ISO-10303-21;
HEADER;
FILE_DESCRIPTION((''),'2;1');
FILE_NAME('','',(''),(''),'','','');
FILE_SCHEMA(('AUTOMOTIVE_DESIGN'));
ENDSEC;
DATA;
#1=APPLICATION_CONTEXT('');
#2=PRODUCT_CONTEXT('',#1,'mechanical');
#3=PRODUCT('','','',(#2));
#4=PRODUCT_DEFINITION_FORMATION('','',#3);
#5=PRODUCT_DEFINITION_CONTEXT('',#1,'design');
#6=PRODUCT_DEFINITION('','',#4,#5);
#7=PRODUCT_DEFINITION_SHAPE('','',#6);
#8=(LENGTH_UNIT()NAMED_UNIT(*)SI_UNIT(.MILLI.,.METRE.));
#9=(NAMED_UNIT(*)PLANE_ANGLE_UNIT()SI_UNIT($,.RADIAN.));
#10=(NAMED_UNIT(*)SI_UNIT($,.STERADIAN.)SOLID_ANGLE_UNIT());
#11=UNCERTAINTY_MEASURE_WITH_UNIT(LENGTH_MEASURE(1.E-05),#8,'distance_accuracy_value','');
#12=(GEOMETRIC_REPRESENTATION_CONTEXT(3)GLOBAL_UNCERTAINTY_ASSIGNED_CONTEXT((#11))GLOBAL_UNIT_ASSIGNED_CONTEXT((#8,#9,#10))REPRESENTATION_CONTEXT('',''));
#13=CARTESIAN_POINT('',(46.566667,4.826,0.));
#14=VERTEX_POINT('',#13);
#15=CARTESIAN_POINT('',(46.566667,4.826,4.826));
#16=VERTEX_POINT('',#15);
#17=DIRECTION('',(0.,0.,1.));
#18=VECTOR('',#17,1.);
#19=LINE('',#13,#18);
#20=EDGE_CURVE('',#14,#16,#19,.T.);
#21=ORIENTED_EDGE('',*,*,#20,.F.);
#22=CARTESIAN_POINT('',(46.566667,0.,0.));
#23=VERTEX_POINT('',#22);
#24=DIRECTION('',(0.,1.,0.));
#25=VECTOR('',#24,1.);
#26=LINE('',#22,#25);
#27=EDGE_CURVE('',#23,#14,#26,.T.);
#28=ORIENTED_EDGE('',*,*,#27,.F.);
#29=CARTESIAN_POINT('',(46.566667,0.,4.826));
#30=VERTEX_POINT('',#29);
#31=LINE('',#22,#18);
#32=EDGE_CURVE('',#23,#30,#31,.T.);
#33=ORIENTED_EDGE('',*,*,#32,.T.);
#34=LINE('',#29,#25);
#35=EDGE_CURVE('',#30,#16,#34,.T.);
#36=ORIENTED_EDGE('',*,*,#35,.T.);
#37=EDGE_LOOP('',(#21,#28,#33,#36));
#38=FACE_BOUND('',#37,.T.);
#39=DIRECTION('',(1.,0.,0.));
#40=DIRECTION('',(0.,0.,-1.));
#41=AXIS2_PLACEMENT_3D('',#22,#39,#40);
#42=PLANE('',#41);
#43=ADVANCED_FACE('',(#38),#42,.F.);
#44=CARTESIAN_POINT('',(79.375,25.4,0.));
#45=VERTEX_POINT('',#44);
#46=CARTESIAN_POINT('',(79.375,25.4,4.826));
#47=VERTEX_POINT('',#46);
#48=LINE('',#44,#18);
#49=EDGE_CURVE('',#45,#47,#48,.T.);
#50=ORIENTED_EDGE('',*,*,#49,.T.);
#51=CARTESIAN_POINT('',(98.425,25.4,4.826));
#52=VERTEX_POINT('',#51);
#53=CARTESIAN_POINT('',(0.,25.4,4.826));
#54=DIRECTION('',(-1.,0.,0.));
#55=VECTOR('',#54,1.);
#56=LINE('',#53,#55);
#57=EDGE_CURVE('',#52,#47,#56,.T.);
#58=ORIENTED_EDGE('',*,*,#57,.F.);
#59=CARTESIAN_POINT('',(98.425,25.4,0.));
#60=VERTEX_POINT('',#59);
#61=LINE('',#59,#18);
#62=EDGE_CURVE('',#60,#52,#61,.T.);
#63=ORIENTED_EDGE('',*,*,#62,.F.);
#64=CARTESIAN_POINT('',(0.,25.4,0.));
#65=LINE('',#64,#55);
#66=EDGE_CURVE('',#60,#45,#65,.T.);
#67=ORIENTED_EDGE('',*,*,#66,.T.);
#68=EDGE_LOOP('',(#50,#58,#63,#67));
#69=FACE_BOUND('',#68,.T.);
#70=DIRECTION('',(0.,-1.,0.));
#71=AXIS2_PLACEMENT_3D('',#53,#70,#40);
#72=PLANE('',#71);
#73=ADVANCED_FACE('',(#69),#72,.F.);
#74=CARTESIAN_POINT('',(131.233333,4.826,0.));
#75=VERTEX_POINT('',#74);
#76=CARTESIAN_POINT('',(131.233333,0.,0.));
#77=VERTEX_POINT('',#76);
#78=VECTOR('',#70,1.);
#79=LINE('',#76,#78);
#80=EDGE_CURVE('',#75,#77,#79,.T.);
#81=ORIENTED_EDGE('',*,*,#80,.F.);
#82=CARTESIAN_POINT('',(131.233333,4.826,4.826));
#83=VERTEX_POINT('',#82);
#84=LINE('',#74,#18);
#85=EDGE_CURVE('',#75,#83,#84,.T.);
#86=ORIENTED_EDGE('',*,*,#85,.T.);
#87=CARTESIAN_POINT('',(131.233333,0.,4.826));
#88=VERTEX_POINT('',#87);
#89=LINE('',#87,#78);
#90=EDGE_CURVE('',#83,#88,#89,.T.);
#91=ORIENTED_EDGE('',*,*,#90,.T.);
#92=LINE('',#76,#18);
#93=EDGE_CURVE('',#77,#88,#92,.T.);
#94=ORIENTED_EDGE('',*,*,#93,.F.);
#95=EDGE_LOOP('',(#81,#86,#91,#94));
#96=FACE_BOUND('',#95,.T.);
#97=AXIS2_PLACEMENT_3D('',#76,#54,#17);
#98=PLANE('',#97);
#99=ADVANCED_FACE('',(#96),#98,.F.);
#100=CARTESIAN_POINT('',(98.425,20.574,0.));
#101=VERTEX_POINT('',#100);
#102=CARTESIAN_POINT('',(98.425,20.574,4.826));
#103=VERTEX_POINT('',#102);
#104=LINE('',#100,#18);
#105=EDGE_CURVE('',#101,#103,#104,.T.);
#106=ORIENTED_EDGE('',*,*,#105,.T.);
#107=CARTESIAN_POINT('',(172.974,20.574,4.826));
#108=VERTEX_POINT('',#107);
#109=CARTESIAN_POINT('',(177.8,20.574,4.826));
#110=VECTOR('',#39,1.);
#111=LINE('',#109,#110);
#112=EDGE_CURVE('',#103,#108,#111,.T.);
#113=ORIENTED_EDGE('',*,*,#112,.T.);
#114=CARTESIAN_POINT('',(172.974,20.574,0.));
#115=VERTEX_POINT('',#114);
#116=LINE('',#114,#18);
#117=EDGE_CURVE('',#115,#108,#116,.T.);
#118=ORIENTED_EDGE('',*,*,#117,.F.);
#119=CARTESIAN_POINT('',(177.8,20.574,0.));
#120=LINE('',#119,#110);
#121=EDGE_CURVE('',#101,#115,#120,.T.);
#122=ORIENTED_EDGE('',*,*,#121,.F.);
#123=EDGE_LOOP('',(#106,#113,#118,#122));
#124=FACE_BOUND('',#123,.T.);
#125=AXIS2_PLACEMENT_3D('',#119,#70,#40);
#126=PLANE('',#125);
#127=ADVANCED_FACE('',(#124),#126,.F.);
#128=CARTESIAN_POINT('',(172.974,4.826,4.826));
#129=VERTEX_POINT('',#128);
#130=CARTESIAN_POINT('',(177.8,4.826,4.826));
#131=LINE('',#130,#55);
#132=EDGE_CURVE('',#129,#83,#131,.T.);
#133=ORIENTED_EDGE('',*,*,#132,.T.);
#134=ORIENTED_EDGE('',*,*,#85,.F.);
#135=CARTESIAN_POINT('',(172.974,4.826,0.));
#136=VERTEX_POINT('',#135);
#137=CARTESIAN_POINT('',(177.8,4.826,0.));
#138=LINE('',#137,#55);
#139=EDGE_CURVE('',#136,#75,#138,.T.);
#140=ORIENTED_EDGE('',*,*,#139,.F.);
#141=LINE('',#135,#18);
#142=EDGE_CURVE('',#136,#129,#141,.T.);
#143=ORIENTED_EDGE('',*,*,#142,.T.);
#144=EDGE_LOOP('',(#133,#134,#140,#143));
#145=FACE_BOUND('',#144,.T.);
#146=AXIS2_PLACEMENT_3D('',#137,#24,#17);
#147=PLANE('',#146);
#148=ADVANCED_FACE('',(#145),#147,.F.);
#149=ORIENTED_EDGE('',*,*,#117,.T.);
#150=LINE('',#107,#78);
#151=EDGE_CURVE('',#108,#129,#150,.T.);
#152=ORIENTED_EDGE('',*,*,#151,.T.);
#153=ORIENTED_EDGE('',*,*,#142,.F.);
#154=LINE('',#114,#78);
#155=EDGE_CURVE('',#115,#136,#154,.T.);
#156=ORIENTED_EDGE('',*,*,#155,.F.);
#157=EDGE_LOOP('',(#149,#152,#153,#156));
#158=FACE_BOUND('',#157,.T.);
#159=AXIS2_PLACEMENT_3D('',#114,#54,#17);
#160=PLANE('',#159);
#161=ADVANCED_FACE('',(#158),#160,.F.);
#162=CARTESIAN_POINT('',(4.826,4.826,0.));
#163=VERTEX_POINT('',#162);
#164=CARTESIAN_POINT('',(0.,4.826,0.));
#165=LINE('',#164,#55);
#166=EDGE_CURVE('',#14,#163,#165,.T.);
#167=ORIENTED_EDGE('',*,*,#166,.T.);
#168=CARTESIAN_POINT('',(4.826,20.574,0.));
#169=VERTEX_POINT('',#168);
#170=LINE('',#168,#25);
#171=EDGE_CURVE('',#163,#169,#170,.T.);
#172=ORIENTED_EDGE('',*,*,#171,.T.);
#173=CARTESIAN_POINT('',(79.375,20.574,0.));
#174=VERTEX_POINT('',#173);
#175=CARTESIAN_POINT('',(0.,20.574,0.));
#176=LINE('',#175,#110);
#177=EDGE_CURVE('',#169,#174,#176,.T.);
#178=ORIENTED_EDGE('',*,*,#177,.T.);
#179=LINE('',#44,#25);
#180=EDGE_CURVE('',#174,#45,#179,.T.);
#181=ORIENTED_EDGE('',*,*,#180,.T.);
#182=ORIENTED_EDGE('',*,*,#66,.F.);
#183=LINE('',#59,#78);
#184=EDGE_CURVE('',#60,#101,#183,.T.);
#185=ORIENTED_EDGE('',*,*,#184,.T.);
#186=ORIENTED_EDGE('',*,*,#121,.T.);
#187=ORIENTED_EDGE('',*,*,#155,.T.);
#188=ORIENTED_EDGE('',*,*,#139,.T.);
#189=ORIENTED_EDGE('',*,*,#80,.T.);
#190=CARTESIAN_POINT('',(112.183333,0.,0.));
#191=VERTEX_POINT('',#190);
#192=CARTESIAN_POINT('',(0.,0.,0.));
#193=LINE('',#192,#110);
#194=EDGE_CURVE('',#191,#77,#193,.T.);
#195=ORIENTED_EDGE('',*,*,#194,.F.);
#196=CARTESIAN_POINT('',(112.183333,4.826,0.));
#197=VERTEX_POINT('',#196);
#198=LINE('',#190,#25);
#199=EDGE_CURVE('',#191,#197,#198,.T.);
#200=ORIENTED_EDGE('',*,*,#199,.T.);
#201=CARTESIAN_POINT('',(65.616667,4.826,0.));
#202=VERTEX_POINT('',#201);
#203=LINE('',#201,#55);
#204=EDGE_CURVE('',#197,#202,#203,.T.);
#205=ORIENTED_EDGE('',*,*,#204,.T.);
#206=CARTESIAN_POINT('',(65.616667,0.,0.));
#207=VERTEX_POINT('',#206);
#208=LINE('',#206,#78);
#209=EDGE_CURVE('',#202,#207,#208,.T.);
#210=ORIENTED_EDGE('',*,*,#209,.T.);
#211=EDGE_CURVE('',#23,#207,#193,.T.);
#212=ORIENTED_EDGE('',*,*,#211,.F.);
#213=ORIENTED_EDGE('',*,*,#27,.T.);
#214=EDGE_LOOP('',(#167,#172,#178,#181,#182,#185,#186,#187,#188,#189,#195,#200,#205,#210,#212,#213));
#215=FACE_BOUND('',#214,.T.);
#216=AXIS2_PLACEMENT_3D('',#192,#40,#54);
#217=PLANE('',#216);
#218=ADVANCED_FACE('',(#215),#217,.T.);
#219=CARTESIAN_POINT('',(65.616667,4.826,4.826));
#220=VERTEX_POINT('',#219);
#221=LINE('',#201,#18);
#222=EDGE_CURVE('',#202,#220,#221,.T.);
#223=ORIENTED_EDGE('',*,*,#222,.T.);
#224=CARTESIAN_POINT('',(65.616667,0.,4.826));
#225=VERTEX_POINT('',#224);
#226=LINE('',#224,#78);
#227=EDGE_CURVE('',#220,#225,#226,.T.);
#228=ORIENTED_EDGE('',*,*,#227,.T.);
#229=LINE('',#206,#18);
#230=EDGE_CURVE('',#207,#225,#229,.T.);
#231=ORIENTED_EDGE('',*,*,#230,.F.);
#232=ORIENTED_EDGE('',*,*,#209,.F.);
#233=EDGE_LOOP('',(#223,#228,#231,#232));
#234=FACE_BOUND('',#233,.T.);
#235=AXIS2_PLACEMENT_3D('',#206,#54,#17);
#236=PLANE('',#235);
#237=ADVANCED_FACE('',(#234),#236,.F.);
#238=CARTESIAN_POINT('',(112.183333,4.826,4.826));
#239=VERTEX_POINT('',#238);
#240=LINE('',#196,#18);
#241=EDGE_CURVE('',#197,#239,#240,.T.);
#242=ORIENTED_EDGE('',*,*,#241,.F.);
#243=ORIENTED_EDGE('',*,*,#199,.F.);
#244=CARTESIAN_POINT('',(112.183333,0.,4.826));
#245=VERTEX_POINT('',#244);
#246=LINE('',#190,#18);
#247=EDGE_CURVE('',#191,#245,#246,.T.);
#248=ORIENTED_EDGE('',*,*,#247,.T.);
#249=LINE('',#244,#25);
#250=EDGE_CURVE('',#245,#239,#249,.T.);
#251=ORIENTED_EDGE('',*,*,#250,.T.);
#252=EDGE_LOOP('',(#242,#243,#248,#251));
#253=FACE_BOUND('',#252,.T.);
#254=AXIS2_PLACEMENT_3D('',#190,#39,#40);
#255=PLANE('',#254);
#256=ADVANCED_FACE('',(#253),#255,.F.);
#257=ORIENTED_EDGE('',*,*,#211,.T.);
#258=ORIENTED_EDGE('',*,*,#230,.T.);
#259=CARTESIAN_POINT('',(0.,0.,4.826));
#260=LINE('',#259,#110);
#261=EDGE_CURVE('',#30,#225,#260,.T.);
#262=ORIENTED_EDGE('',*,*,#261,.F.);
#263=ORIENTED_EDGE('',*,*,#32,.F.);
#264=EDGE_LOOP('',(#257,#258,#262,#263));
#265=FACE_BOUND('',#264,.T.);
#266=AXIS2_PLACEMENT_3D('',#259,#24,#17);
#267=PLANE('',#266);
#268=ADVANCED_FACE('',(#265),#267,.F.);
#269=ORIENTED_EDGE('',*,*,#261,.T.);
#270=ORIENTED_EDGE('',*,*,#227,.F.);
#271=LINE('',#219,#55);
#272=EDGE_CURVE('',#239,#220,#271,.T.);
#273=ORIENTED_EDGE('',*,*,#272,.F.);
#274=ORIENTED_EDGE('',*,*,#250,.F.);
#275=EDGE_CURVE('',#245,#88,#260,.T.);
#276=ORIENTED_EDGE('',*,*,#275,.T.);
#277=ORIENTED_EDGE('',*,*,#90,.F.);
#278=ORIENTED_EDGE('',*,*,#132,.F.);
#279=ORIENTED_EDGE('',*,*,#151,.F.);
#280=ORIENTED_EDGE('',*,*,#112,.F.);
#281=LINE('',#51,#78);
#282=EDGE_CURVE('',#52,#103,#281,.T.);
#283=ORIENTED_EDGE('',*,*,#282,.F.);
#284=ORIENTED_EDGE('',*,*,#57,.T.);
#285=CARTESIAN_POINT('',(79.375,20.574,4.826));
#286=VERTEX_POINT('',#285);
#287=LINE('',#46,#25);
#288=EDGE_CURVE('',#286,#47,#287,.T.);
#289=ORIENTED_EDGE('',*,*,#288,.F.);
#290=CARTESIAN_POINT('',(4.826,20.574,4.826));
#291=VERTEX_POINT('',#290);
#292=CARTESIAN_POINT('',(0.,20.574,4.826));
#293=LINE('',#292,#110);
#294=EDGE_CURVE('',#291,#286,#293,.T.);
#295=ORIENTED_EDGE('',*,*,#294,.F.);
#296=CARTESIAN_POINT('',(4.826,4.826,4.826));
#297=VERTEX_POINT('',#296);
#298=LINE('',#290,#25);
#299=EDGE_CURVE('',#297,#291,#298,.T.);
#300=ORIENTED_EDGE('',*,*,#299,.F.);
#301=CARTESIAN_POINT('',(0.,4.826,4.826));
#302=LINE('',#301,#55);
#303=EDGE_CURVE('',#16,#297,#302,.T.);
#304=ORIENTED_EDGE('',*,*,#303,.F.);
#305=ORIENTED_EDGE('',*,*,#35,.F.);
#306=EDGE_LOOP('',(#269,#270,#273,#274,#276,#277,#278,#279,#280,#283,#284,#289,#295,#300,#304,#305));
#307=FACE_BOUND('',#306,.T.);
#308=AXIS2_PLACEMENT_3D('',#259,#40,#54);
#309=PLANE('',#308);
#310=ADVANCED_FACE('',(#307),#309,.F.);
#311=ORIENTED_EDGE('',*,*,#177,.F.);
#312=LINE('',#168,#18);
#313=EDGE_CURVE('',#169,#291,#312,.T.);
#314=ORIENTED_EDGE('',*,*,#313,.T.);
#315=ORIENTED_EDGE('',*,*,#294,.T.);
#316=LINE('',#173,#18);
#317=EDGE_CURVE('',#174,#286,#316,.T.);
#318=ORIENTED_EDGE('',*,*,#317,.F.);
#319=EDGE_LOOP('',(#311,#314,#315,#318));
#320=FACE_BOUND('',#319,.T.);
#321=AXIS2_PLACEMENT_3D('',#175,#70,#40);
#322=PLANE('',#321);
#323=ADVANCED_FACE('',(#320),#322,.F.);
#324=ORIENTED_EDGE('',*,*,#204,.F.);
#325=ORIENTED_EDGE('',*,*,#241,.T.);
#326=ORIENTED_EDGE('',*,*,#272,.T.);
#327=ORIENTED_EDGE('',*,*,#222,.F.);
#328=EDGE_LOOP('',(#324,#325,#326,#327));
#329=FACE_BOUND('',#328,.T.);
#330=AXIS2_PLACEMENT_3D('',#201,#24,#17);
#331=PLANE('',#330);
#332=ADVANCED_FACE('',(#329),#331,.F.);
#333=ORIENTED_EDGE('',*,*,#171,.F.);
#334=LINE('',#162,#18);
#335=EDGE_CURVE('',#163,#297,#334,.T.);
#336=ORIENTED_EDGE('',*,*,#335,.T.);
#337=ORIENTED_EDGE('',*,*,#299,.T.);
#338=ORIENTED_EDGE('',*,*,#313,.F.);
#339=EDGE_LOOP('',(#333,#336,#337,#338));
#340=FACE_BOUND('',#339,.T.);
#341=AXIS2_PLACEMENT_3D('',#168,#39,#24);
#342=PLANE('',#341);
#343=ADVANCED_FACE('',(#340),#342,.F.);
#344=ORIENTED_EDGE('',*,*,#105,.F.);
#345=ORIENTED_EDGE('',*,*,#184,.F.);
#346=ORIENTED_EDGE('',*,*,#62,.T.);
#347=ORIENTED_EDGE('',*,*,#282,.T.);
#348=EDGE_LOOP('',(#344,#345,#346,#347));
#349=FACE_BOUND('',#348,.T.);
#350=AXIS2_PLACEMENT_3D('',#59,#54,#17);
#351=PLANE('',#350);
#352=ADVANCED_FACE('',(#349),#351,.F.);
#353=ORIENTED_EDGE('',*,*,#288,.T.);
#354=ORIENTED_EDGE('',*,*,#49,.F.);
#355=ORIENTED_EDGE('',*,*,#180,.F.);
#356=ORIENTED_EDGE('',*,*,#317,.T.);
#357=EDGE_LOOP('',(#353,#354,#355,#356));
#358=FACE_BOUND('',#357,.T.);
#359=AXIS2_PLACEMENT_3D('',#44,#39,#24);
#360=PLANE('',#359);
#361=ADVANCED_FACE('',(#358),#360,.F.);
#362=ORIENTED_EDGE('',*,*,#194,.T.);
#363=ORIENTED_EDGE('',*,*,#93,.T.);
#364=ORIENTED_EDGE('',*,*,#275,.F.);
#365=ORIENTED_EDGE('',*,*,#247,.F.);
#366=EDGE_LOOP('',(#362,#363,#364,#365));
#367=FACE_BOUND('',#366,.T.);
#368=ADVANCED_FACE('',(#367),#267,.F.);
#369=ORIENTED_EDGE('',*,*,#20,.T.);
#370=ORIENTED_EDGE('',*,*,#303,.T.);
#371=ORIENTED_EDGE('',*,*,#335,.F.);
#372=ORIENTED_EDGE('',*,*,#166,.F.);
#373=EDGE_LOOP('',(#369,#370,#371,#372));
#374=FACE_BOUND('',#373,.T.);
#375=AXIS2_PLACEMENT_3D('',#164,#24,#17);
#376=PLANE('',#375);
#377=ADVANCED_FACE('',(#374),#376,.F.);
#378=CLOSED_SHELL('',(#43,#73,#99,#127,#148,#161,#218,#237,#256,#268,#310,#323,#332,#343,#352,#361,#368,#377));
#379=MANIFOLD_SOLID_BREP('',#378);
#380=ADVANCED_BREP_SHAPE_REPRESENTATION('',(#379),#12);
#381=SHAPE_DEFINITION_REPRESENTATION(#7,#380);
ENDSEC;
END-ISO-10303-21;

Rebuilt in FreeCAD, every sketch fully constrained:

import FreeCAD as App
import Part
import Sketcher

V = App.Vector
Q = App.Units.Quantity


def add_polygon(sketch, points):
    """Adds a closed chain of lines whose ends are joined by coincident constraints."""
    first, n = sketch.GeometryCount, len(points)
    for a, b in zip(points, points[1:] + points[:1]):
        sketch.addGeometry(Part.LineSegment(App.Vector(*a, 0), App.Vector(*b, 0)), False)
    for i in range(n):
        sketch.addConstraint(Sketcher.Constraint("Coincident", first + i, 2, first + (i + 1) % n, 1))

doc = App.newDocument("Part")
body = doc.addObject("PartDesign::Body", "Body")

sketch1 = doc.addObject("Sketcher::SketchObject", "Sketch")
body.addObject(sketch1)
sketch1.AttachmentSupport = (doc.XY_Plane, [""])
sketch1.MapMode = "FlatFace"
add_polygon(sketch1, [(0, 25), (0, 0), (178, 0), (178, 25)])
sketch1.addConstraint([
    Sketcher.Constraint("Vertical", 0),
    Sketcher.Constraint("Horizontal", 1),
    Sketcher.Constraint("Vertical", 2),
    Sketcher.Constraint("Horizontal", 3),
    Sketcher.Constraint("Coincident", 0, 2, -1, 1),
    Sketcher.Constraint("DistanceX", 1, 1, 1, 2, Q("7 in")),
    Sketcher.Constraint("DistanceY", 0, 2, 0, 1, Q("1 in")),
])
pad1 = doc.addObject("PartDesign::Pad", "Pad")
body.addObject(pad1)
pad1.Profile = sketch1
pad1.Length = Q("0.19 in")

sketch2 = doc.addObject("Sketcher::SketchObject", "Sketch001")
body.addObject(sketch2)
sketch2.AttachmentSupport = (doc.XY_Plane, [""])
sketch2.MapMode = "FlatFace"
sketch2.AttachmentOffset = App.Placement(V(0, 0, 0.19 * 25.4), App.Rotation())
add_polygon(sketch2, [(0, 4.8), (0, 0), (46.6, 0), (46.6, 4.8)])
add_polygon(sketch2, [(65.6, 4.8), (65.6, 0), (112.2, 0), (112.2, 4.8)])
add_polygon(sketch2, [(131.2, 4.8), (131.2, 0), (177.8, 0), (177.8, 4.8)])
sketch2.addConstraint([
    Sketcher.Constraint("Vertical", 0),
    Sketcher.Constraint("Horizontal", 1),
    Sketcher.Constraint("Vertical", 2),
    Sketcher.Constraint("Horizontal", 3),
    Sketcher.Constraint("Vertical", 4),
    Sketcher.Constraint("Horizontal", 5),
    Sketcher.Constraint("Vertical", 6),
    Sketcher.Constraint("Horizontal", 7),
    Sketcher.Constraint("Vertical", 8),
    Sketcher.Constraint("Horizontal", 9),
    Sketcher.Constraint("Vertical", 10),
    Sketcher.Constraint("Horizontal", 11),
    Sketcher.Constraint("Coincident", 0, 2, -1, 1),
    Sketcher.Constraint("PointOnObject", 4, 2, -1),
    Sketcher.Constraint("PointOnObject", 8, 2, -1),
    Sketcher.Constraint("Horizontal", 3, 2, 6, 2),
    Sketcher.Constraint("Horizontal", 7, 2, 10, 2),
    Sketcher.Constraint("Equal", 3, 5),
    Sketcher.Constraint("Equal", 7, 9),
    Sketcher.Constraint("DistanceX", -1, 1, 9, 2, Q("7 in")),
    Sketcher.Constraint("DistanceY", 0, 2, 0, 1, Q("0.19 in")),
    Sketcher.Constraint("DistanceX", 1, 2, 4, 2, Q("0.75 in")),
    Sketcher.Constraint("DistanceX", 5, 2, 8, 2, Q("0.75 in")),
])
pocket1 = doc.addObject("PartDesign::Pocket", "Pocket")
body.addObject(pocket1)
pocket1.Profile = sketch2
pocket1.Type = "ThroughAll"

sketch3 = doc.addObject("Sketcher::SketchObject", "Sketch002")
body.addObject(sketch3)
sketch3.AttachmentSupport = (doc.XY_Plane, [""])
sketch3.MapMode = "FlatFace"
sketch3.AttachmentOffset = App.Placement(V(0, 0, 0.19 * 25.4), App.Rotation())
add_polygon(sketch3, [(0, 25.4), (0, 20.6), (79.4, 20.6), (79.4, 25.4)])
add_polygon(sketch3, [(98.4, 25.4), (98.4, 20.6), (177.8, 20.6), (177.8, 25.4)])
sketch3.addConstraint([
    Sketcher.Constraint("Vertical", 0),
    Sketcher.Constraint("Horizontal", 1),
    Sketcher.Constraint("Vertical", 2),
    Sketcher.Constraint("Horizontal", 3),
    Sketcher.Constraint("Vertical", 4),
    Sketcher.Constraint("Horizontal", 5),
    Sketcher.Constraint("Vertical", 6),
    Sketcher.Constraint("Horizontal", 7),
    Sketcher.Constraint("PointOnObject", 0, 2, -2),
    Sketcher.Constraint("Horizontal", 1, 2, 4, 2),
    Sketcher.Constraint("Horizontal", 3, 2, 6, 2),
    Sketcher.Constraint("Equal", 3, 5),
    Sketcher.Constraint("DistanceY", -1, 1, 2, 2, Q("1 in")),
    Sketcher.Constraint("DistanceX", -1, 1, 5, 2, Q("7 in")),
    Sketcher.Constraint("DistanceY", 0, 2, 0, 1, Q("0.19 in")),
    Sketcher.Constraint("DistanceX", 1, 1, 1, 2, Q("3.125 in")),
])
pocket2 = doc.addObject("PartDesign::Pocket", "Pocket001")
body.addObject(pocket2)
pocket2.Profile = sketch3
pocket2.Type = "ThroughAll"

sketch4 = doc.addObject("Sketcher::SketchObject", "Sketch003")
body.addObject(sketch4)
sketch4.AttachmentSupport = (doc.XY_Plane, [""])
sketch4.MapMode = "FlatFace"
sketch4.AttachmentOffset = App.Placement(V(0, 0, 0.19 * 25.4), App.Rotation())
add_polygon(sketch4, [(0, 20.6), (0, 4.8), (4.8, 4.8), (4.8, 20.6)])
add_polygon(sketch4, [(173, 20.6), (173, 4.8), (177.8, 4.8), (177.8, 20.6)])
sketch4.addConstraint([
    Sketcher.Constraint("Vertical", 0),
    Sketcher.Constraint("Horizontal", 1),
    Sketcher.Constraint("Vertical", 2),
    Sketcher.Constraint("Horizontal", 3),
    Sketcher.Constraint("Vertical", 4),
    Sketcher.Constraint("Horizontal", 5),
    Sketcher.Constraint("Vertical", 6),
    Sketcher.Constraint("Horizontal", 7),
    Sketcher.Constraint("PointOnObject", 0, 2, -2),
    Sketcher.Constraint("Horizontal", 1, 2, 4, 2),
    Sketcher.Constraint("Horizontal", 3, 2, 6, 2),
    Sketcher.Constraint("Equal", 3, 5),
    Sketcher.Constraint("DistanceX", -1, 1, 5, 2, Q("7 in")),
    Sketcher.Constraint("DistanceX", 1, 1, 1, 2, Q("0.19 in")),
    Sketcher.Constraint("DistanceY", 0, 2, 0, 1, Q("0.62 in")),
    Sketcher.Constraint("DistanceY", -1, 1, 0, 2, Q("0.19 in")),
])
pocket3 = doc.addObject("PartDesign::Pocket", "Pocket002")
body.addObject(pocket3)
pocket3.Profile = sketch4
pocket3.Type = "ThroughAll"

doc.recompute()
